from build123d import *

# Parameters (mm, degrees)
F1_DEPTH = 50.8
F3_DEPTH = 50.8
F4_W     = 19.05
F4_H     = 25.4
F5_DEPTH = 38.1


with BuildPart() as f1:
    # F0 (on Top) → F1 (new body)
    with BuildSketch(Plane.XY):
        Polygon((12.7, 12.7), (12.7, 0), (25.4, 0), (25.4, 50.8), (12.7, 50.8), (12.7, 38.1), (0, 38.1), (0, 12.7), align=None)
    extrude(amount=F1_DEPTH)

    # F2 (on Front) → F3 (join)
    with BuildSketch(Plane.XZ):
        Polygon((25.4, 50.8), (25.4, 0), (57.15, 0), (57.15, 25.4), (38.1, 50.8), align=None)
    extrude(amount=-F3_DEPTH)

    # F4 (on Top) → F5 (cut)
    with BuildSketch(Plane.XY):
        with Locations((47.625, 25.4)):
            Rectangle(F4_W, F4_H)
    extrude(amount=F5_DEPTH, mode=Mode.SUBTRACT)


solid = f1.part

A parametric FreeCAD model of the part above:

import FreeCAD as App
import Part
import Sketcher

V = App.Vector
Q = App.Units.Quantity


def add_polygon(sketch, points):
    """Adds a closed chain of lines whose ends are joined by coincident constraints."""
    first, n = sketch.GeometryCount, len(points)
    for a, b in zip(points, points[1:] + points[:1]):
        sketch.addGeometry(Part.LineSegment(App.Vector(*a, 0), App.Vector(*b, 0)), False)
    for i in range(n):
        sketch.addConstraint(Sketcher.Constraint("Coincident", first + i, 2, first + (i + 1) % n, 1))

doc = App.newDocument("Part")
body = doc.addObject("PartDesign::Body", "Body")

# Sketch on XY plane
sketch1 = body.newObject("Sketcher::SketchObject", "Sketch")
sketch1.AttachmentSupport = (doc.getObject("XY_Plane"), [""])
sketch1.MapMode = "FlatFace"
add_polygon(sketch1, [(13, 13), (13, 0), (25, 0), (25, 51), (13, 51), (13, 38), (0, 38), (0, 13)])  # lines 0-7
sketch1.addConstraint([
    Sketcher.Constraint("Vertical", 0),
    Sketcher.Constraint("Horizontal", 1),
    Sketcher.Constraint("Vertical", 2),
    Sketcher.Constraint("Horizontal", 3),
    Sketcher.Constraint("Vertical", 4),
    Sketcher.Constraint("Horizontal", 5),
    Sketcher.Constraint("Vertical", 6),
    Sketcher.Constraint("Horizontal", 7),
    Sketcher.Constraint("PointOnObject", 0, 2, -1),
    Sketcher.Constraint("PointOnObject", 5, 2, -2),
    Sketcher.Constraint("Vertical", 0, 2, 3, 2),
    Sketcher.Constraint("Equal", 3, 5),
    Sketcher.Constraint("Equal", 7, 0),
    Sketcher.Constraint("Equal", 0, 4),
    Sketcher.Constraint("DistanceY", 2, 1, 2, 2, Q("2 in")),
    Sketcher.Constraint("DistanceY", 6, 2, 6, 1, Q("1 in")),
])
pad1 = body.newObject("PartDesign::Pad", "Pad")
pad1.Profile = sketch1
pad1.Length = Q("2 in")

# Sketch on XZ plane
sketch2 = body.newObject("Sketcher::SketchObject", "Sketch001")
sketch2.AttachmentSupport = (doc.getObject("XZ_Plane"), [""])
sketch2.MapMode = "FlatFace"
add_polygon(sketch2, [(25, 51), (25, 0), (57, 0), (57, 25), (38, 51)])  # lines 0-4
sketch2.addConstraint([
    Sketcher.Constraint("Vertical", 0),
    Sketcher.Constraint("Horizontal", 1),
    Sketcher.Constraint("Vertical", 2),
    Sketcher.Constraint("Horizontal", 4),
    Sketcher.Constraint("PointOnObject", 0, 2, -1),
    Sketcher.Constraint("DistanceY", 0, 2, 0, 1, Q("2 in")),
    Sketcher.Constraint("DistanceY", 2, 1, 2, 2, Q("1 in")),
    Sketcher.Constraint("DistanceX", 4, 2, 4, 1, Q("0.5 in")),
    Sketcher.Constraint("DistanceX", -1, 1, 0, 2, Q("1 in")),
    Sketcher.Constraint("DistanceX", 1, 1, 1, 2, Q("1.25 in")),
])
pad2 = body.newObject("PartDesign::Pad", "Pad001")
pad2.Profile = sketch2
pad2.Length = Q("2 in")
pad2.Reversed = True

# Sketch on XY plane
sketch3 = body.newObject("Sketcher::SketchObject", "Sketch002")
sketch3.AttachmentSupport = (doc.getObject("XY_Plane"), [""])
sketch3.MapMode = "FlatFace"
add_polygon(sketch3, [(38, 38), (38, 13), (57, 13), (57, 38)])  # lines 0-3
sketch3.addConstraint([
    Sketcher.Constraint("Vertical", 0),
    Sketcher.Constraint("Horizontal", 1),
    Sketcher.Constraint("Vertical", 2),
    Sketcher.Constraint("Horizontal", 3),
    Sketcher.Constraint("DistanceY", 0, 2, 0, 1, Q("1 in")),
    Sketcher.Constraint("DistanceX", 1, 1, 1, 2, Q("0.75 in")),
    Sketcher.Constraint("DistanceX", -1, 1, 0, 2, Q("1.5 in")),
    Sketcher.Constraint("DistanceY", -1, 1, 0, 2, Q("0.5 in")),
])
pocket1 = body.newObject("PartDesign::Pocket", "Pocket")
pocket1.Profile = sketch3
pocket1.Length = Q("1.5 in")
pocket1.Reversed = True

doc.recompute()
